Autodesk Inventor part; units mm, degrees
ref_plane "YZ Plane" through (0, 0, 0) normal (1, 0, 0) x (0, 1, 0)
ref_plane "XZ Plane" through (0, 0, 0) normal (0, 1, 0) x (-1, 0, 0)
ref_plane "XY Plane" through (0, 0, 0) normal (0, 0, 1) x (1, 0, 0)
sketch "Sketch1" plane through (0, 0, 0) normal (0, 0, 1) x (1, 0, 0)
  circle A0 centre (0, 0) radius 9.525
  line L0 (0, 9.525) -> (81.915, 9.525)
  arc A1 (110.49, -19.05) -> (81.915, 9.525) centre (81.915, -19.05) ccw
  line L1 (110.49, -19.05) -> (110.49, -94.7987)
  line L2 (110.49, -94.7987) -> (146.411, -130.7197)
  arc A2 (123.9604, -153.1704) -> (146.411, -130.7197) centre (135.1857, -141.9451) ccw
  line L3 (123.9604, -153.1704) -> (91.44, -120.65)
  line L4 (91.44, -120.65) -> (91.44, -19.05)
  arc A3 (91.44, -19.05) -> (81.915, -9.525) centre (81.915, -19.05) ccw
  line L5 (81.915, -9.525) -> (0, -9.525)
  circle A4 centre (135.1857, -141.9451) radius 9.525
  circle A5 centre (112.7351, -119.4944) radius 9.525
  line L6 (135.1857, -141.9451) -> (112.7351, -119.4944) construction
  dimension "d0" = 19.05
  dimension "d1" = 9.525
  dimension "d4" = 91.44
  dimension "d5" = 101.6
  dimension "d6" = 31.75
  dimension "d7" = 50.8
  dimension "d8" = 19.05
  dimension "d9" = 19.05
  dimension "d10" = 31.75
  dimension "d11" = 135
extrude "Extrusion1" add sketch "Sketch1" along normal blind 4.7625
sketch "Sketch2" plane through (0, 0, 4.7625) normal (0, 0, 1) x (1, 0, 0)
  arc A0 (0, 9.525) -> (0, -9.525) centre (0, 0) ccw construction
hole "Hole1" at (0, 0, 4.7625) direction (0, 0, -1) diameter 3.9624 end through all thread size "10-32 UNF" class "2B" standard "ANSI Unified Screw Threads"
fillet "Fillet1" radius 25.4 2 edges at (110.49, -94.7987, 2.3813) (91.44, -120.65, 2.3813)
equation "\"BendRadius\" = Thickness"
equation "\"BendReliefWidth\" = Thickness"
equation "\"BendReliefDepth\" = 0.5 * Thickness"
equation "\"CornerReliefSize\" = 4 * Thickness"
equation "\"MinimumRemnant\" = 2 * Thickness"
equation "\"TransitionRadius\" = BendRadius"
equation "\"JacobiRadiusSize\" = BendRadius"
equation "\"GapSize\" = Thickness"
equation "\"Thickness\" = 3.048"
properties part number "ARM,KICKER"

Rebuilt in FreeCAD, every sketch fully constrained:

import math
import FreeCAD as App
import Part
import Sketcher
Q = App.Units.Quantity


def edges_at(feature, points):
    """Names of the edges that pass closest to the given points."""
    edges = feature.Shape.Edges
    near = lambda p: min(range(len(edges)), key=lambda i: edges[i].distToShape(Part.Vertex(*p))[0])
    return sorted({f"Edge{near(p) + 1}" for p in points})

doc = App.newDocument("Part")
params = doc.addObject("Spreadsheet::Sheet", "Params")
for row, (alias, value) in enumerate([
    ("sketch1_diameter", "0.75 in"),
    ("sketch1_height", "4 in"),
    ("sketch1_length", "2 in"),
    ("sketch1_radius", "0.625 in"),
    ("pad1_length", "0.1875 in"),
    ("sketch2_diameter", "0.156 in"),
    ("hole_diameter", "0.156 in"),
    ("fillet_radius", "1 in"),
], start=1):
    params.set(f"A{row}", alias)
    params.set(f"B{row}", "=" + value)
    params.setAlias(f"B{row}", alias)

body = doc.addObject("PartDesign::Body", "Body")

sketch1 = doc.addObject("Sketcher::SketchObject", "Sketch")
body.addObject(sketch1)
sketch1.AttachmentSupport = (doc.XY_Plane, [""])
sketch1.MapMode = "FlatFace"
sketch1.addGeometry([
    Part.ArcOfCircle(Part.Circle(App.Vector(0, 0, 0), App.Vector(0, 0, 1), 10), math.radians(90), math.radians(270)),
    Part.LineSegment(App.Vector(0, -10, 0), App.Vector(82, -10, 0)),
    Part.ArcOfCircle(Part.Circle(App.Vector(82, -19, 0), App.Vector(0, 0, 1), 10), math.radians(0), math.radians(90)),
    Part.LineSegment(App.Vector(91, -19, 0), App.Vector(91, -121, 0)),
    Part.LineSegment(App.Vector(91, -121, 0), App.Vector(124, -153, 0)),
    Part.ArcOfCircle(Part.Circle(App.Vector(135, -142, 0), App.Vector(0, 0, 1), 16), math.radians(-135), math.radians(45)),
    Part.LineSegment(App.Vector(146, -131, 0), App.Vector(110, -95, 0)),
    Part.LineSegment(App.Vector(110, -95, 0), App.Vector(110, -19, 0)),
    Part.ArcOfCircle(Part.Circle(App.Vector(82, -19, 0), App.Vector(0, 0, 1), 29), math.radians(0), math.radians(90)),
    Part.LineSegment(App.Vector(82, 10, 0), App.Vector(0, 10, 0)),
    Part.Circle(App.Vector(135, -142, 0), App.Vector(0, 0, 1), 10),
    Part.Circle(App.Vector(113, -119, 0), App.Vector(0, 0, 1), 10),
], False)
sketch1.addConstraint([
    Sketcher.Constraint("Tangent", 0, 2, 1, 1),
    Sketcher.Constraint("Tangent", 1, 2, 2, 2),
    Sketcher.Constraint("Tangent", 2, 1, 3, 1),
    Sketcher.Constraint("Coincident", 3, 2, 4, 1),
    Sketcher.Constraint("Tangent", 4, 2, 5, 1),
    Sketcher.Constraint("Tangent", 5, 2, 6, 1),
    Sketcher.Constraint("Coincident", 6, 2, 7, 1),
    Sketcher.Constraint("Tangent", 7, 2, 8, 1),
    Sketcher.Constraint("Tangent", 8, 2, 9, 1),
    Sketcher.Constraint("Tangent", 9, 2, 0, 1),
    Sketcher.Constraint("Horizontal", 1),
    Sketcher.Constraint("Vertical", 3),
    Sketcher.Constraint("Vertical", 7),
    Sketcher.Constraint("Horizontal", 9),
    Sketcher.Constraint("Coincident", 0, 3, -1, 1),
    Sketcher.Constraint("Coincident", 8, 3, 2, 3),
    Sketcher.Constraint("Coincident", 10, 3, 5, 3),
    Sketcher.Constraint("Equal", 0, 2),
    Sketcher.Constraint("Equal", 2, 10),
    Sketcher.Constraint("Equal", 10, 11),
    Sketcher.Constraint("Parallel", 4, 6),
    Sketcher.Constraint("Diameter", 10, Q("0.75 in")),
    Sketcher.Constraint("DistanceY", 3, 2, 3, 1, Q("4 in")),
    Sketcher.Constraint("Distance", 6, Q("2 in")),
    Sketcher.Constraint("Angle", 6, Q("135 deg")),
    Sketcher.Constraint("Radius", 5, Q("0.625 in")),
    Sketcher.Constraint("DistanceX", -1, 1, 2, 1, Q("3.6 in")),
    Sketcher.Constraint("DistanceX", -1, 1, 11, 3, Q("4.4384 in")),
    Sketcher.Constraint("DistanceY", 11, 3, -1, 1, Q("4.7045 in")),
])
sketch1.setExpression("Constraints[21]", "Params.sketch1_diameter")
sketch1.setExpression("Constraints[22]", "Params.sketch1_height")
sketch1.setExpression("Constraints[23]", "Params.sketch1_length")
sketch1.setExpression("Constraints[25]", "Params.sketch1_radius")
pad1 = doc.addObject("PartDesign::Pad", "Pad")
body.addObject(pad1)
pad1.Profile = sketch1
pad1.setExpression("Length", "Params.pad1_length")

sketch2 = doc.addObject("Sketcher::SketchObject", "Sketch001")
body.addObject(sketch2)
sketch2.AttachmentSupport = (doc.XY_Plane, [""])
sketch2.MapMode = "FlatFace"
sketch2.AttachmentOffset = App.Placement(App.Vector(0, 0, 0.1875 * 25.4), App.Rotation())
sketch2.addGeometry(Part.Circle(App.Vector(0, 0, 0), App.Vector(0, 0, 1), 2), False)
sketch2.addConstraint([
    Sketcher.Constraint("Coincident", 0, 3, -1, 1),
    Sketcher.Constraint("Diameter", 0, Q("0.156 in")),
])
sketch2.setExpression("Constraints[1]", "Params.sketch2_diameter")
doc.recompute()
hole = doc.addObject("PartDesign::Hole", "Hole")
body.addObject(hole)
hole.Profile = sketch2
hole.ThreadType = "None"
hole.setExpression("Diameter", "Params.hole_diameter")
hole.DepthType = "ThroughAll"
doc.recompute()

fillet = doc.addObject("PartDesign::Fillet", "Fillet")
body.addObject(fillet)
fillet.Base = (hole, edges_at(hole, [(110.49, -94.799, 2.381), (91.44, -120.65, 2.381)]))
fillet.setExpression("Radius", "Params.fillet_radius")

doc.recompute()
